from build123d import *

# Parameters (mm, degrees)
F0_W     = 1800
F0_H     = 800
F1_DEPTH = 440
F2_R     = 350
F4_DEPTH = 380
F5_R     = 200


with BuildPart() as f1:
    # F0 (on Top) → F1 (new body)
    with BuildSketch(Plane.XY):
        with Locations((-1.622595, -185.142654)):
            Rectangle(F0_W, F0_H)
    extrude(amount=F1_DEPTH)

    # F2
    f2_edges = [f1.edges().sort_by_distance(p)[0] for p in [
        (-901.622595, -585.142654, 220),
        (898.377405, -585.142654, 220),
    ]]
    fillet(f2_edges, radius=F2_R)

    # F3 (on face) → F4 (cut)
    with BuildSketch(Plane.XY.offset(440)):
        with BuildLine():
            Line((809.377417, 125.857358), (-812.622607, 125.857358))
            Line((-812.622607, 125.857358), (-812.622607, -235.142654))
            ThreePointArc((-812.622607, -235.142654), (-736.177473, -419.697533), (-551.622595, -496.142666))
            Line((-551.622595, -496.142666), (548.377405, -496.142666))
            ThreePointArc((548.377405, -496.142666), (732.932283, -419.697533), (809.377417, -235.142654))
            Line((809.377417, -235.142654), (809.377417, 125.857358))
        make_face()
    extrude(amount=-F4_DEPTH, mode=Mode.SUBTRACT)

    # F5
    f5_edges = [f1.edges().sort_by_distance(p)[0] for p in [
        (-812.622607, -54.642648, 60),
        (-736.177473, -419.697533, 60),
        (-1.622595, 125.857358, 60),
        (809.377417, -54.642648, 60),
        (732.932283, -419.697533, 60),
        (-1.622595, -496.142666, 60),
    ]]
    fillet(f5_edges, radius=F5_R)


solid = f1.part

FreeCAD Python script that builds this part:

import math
import FreeCAD as App
import Part
import Sketcher

V = App.Vector


def edges_at(feature, points):
    """Names of the edges that pass closest to the given points."""
    edges = feature.Shape.Edges
    near = lambda p: min(range(len(edges)), key=lambda i: edges[i].distToShape(Part.Vertex(*p))[0])
    return sorted({f"Edge{near(p) + 1}" for p in points})

doc = App.newDocument("Part")
params = doc.addObject("Spreadsheet::Sheet", "Params")
for row, (alias, value) in enumerate([
    ("sketch1_width", "1800 mm"),
    ("sketch1_height", "800 mm"),
    ("pad1_length", "440 mm"),
    ("fillet_radius", "350 mm"),
    ("sketch2_width", "1100 mm"),
    ("pocket1_length", "380 mm"),
    ("fillet2_radius", "200 mm"),
], start=1):
    params.set(f"A{row}", alias)
    params.set(f"B{row}", "=" + value)
    params.setAlias(f"B{row}", alias)

body = doc.addObject("PartDesign::Body", "Body")

# Sketch on XY plane
sketch1 = body.newObject("Sketcher::SketchObject", "Sketch")
sketch1.AttachmentSupport = (doc.getObject("XY_Plane"), [""])
sketch1.MapMode = "FlatFace"
sketch1.addGeometry([
    Part.LineSegment(V(-902, 215, 0), V(-902, -585, 0)),
    Part.LineSegment(V(-902, -585, 0), V(898, -585, 0)),
    Part.LineSegment(V(898, -585, 0), V(898, 215, 0)),
    Part.LineSegment(V(898, 215, 0), V(-902, 215, 0)),
], False)
sketch1.addConstraint([
    Sketcher.Constraint("Coincident", 0, 2, 1, 1),
    Sketcher.Constraint("Coincident", 1, 2, 2, 1),
    Sketcher.Constraint("Coincident", 2, 2, 3, 1),
    Sketcher.Constraint("Coincident", 3, 2, 0, 1),
    Sketcher.Constraint("Vertical", 0),
    Sketcher.Constraint("Horizontal", 1),
    Sketcher.Constraint("Vertical", 2),
    Sketcher.Constraint("Horizontal", 3),
    Sketcher.Constraint("DistanceX", 1, 1, 1, 2, 1800.0),
    Sketcher.Constraint("DistanceY", 0, 2, 0, 1, 800.0),
    Sketcher.Constraint("DistanceX", 0, 2, -1, 1, 901.622595),
    Sketcher.Constraint("DistanceY", 0, 2, -1, 1, 585.142654),
])
sketch1.setExpression("Constraints[8]", "Params.sketch1_width")
sketch1.setExpression("Constraints[9]", "Params.sketch1_height")
pad1 = body.newObject("PartDesign::Pad", "Pad")
pad1.Profile = sketch1
pad1.setExpression("Length", "Params.pad1_length")
doc.recompute()

fillet = body.newObject("PartDesign::Fillet", "Fillet")
fillet.Base = (pad1, edges_at(pad1, [(-901.623, -585.143, 220), (898.377, -585.143, 220)]))
fillet.setExpression("Radius", "Params.fillet_radius")

# Sketch on XY plane
sketch2 = body.newObject("Sketcher::SketchObject", "Sketch001")
sketch2.AttachmentSupport = (doc.getObject("XY_Plane"), [""])
sketch2.MapMode = "FlatFace"
sketch2.AttachmentOffset = App.Placement(V(0, 0, 440), App.Rotation())
sketch2.addGeometry([
    Part.LineSegment(V(809, 126, 0), V(-813, 126, 0)),  # 0
    Part.LineSegment(V(-813, 126, 0), V(-813, -235, 0)),  # 1
    Part.ArcOfCircle(Part.Circle(V(-552, -235, 0), V(0, 0, 1), 261), math.radians(180), math.radians(270)),  # 2
    Part.LineSegment(V(-552, -496, 0), V(548, -496, 0)),  # 3
    Part.ArcOfCircle(Part.Circle(V(548, -235, 0), V(0, 0, 1), 261), math.radians(-90), math.radians(0)),  # 4
    Part.LineSegment(V(809, -235, 0), V(809, 126, 0)),  # 5
], False)
sketch2.addConstraint([
    Sketcher.Constraint("Coincident", 0, 2, 1, 1),
    Sketcher.Constraint("Tangent", 1, 2, 2, 1),
    Sketcher.Constraint("Tangent", 2, 2, 3, 1),
    Sketcher.Constraint("Tangent", 3, 2, 4, 1),
    Sketcher.Constraint("Tangent", 4, 2, 5, 1),
    Sketcher.Constraint("Coincident", 5, 2, 0, 1),
    Sketcher.Constraint("Horizontal", 0),
    Sketcher.Constraint("Vertical", 1),
    Sketcher.Constraint("Horizontal", 3),
    Sketcher.Constraint("Vertical", 5),
    Sketcher.Constraint("Equal", 2, 4),
    Sketcher.Constraint("DistanceX", 3, 1, 3, 2, 1100.0),
    Sketcher.Constraint("Radius", 2, 261.000012),
    Sketcher.Constraint("DistanceY", 1, 2, 1, 1, 361.000012),
    Sketcher.Constraint("DistanceY", -1, 1, 0, 2, 125.857358),
    Sketcher.Constraint("DistanceX", 2, 3, -1, 1, 551.622595),
])
sketch2.setExpression("Constraints[11]", "Params.sketch2_width")
pocket1 = body.newObject("PartDesign::Pocket", "Pocket")
pocket1.Profile = sketch2
pocket1.setExpression("Length", "Params.pocket1_length")
doc.recompute()

fillet2 = body.newObject("PartDesign::Fillet", "Fillet001")
fillet2.Base = (pocket1, edges_at(pocket1, [
    (-812.623, -54.643, 60),
    (-736.177, -419.698, 60),
    (-1.623, 125.857, 60),
    (809.377, -54.643, 60),
    (732.932, -419.698, 60),
    (-1.623, -496.143, 60),
]))
fillet2.setExpression("Radius", "Params.fillet2_radius")

doc.recompute()
